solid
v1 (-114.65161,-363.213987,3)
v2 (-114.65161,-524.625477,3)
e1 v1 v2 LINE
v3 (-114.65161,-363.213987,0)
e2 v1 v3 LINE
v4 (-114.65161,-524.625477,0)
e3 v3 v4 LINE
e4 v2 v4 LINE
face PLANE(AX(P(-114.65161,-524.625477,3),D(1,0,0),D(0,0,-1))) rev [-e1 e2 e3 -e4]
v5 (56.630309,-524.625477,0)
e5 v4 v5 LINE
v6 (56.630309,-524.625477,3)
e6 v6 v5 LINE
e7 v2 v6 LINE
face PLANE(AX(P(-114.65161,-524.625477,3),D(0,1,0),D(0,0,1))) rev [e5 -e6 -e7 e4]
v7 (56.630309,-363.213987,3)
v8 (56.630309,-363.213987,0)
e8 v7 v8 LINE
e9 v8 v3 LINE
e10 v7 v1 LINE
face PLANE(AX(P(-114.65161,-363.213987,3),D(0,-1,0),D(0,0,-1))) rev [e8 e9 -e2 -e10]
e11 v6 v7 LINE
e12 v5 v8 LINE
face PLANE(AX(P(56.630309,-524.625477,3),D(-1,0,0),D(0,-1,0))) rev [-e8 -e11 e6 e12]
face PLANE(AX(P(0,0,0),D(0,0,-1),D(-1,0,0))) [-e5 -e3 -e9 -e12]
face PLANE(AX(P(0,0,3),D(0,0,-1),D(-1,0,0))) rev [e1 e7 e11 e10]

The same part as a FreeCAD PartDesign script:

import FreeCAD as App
import Part
import Sketcher
from FreeCAD import Vector
Q = App.Units.Quantity

doc = App.newDocument("Part")
body = doc.addObject("PartDesign::Body", "Body")

# Sketch on XY plane
sketch1 = body.newObject("Sketcher::SketchObject", "Sketch")
sketch1.AttachmentSupport = (doc.getObject("XY_Plane"), [""])
sketch1.MapMode = "FlatFace"
sketch1.addGeometry([
    Part.LineSegment(Vector(-115, -363, 0), Vector(-115, -525, 0)),
    Part.LineSegment(Vector(-115, -525, 0), Vector(57, -525, 0)),
    Part.LineSegment(Vector(57, -525, 0), Vector(57, -363, 0)),
    Part.LineSegment(Vector(57, -363, 0), Vector(-115, -363, 0)),
], False)
sketch1.addConstraint([
    Sketcher.Constraint("Coincident", 0, 2, 1, 1),
    Sketcher.Constraint("Coincident", 1, 2, 2, 1),
    Sketcher.Constraint("Coincident", 2, 2, 3, 1),
    Sketcher.Constraint("Coincident", 3, 2, 0, 1),
    Sketcher.Constraint("Vertical", 0),
    Sketcher.Constraint("Horizontal", 1),
    Sketcher.Constraint("Vertical", 2),
    Sketcher.Constraint("Horizontal", 3),
    Sketcher.Constraint("DistanceX", 1, 1, 1, 2, Q("171.281919 mm")),
    Sketcher.Constraint("DistanceY", 0, 2, 0, 1, Q("161.41149 mm")),
    Sketcher.Constraint("DistanceX", 0, 2, -1, 1, Q("114.65161 mm")),
    Sketcher.Constraint("DistanceY", 0, 2, -1, 1, Q("524.625477 mm")),
])
pad1 = body.newObject("PartDesign::Pad", "Pad")
pad1.Profile = sketch1
pad1.Length = 3

doc.recompute()
